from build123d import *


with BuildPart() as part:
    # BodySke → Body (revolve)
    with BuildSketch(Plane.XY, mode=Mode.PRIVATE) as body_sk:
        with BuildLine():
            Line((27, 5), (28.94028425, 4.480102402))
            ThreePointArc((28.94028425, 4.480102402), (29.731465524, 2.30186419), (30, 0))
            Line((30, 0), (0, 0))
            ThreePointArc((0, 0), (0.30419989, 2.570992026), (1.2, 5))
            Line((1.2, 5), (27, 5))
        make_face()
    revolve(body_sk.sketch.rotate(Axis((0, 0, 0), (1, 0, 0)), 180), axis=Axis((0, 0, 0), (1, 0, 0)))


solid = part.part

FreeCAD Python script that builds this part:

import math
import FreeCAD as App
import Part
import Sketcher
from FreeCAD import Vector
Q = App.Units.Quantity

doc = App.newDocument("Part")
body = doc.addObject("PartDesign::Body", "Body")

# Sketch on XY plane
sketch1 = doc.addObject("Sketcher::SketchObject", "Sketch")
body.addObject(sketch1)
sketch1.AttachmentSupport = (doc.XY_Plane, [""])
sketch1.MapMode = "FlatFace"
sketch1.addGeometry(Part.LineSegment(Vector(28.9, 4.5, 0), Vector(27, 5, 0)), False)
sketch1.addGeometry(Part.LineSegment(Vector(27, 5, 0), Vector(1.2, 5, 0)), False)
sketch1.addGeometry(Part.ArcOfCircle(Part.Circle(Vector(11, 0, 0), Vector(0, 0, 1), 11), math.radians(153), math.radians(180)), False)
sketch1.addGeometry(Part.LineSegment(Vector(0, 0, 0), Vector(30, 0, 0)), False)
sketch1.addGeometry(Part.ArcOfCircle(Part.Circle(Vector(20, 0, 0), Vector(0, 0, 1), 10), math.radians(0), math.radians(27)), False)
sketch1.addConstraint(Sketcher.Constraint("Coincident", 0, 2, 1, 1))
sketch1.addConstraint(Sketcher.Constraint("Coincident", 1, 2, 2, 1))
sketch1.addConstraint(Sketcher.Constraint("Coincident", 2, 2, 3, 1))
sketch1.addConstraint(Sketcher.Constraint("Coincident", 3, 2, 4, 1))
sketch1.addConstraint(Sketcher.Constraint("Coincident", 4, 2, 0, 1))
sketch1.addConstraint(Sketcher.Constraint("Horizontal", 1))
sketch1.addConstraint(Sketcher.Constraint("Horizontal", 3))
sketch1.addConstraint(Sketcher.Constraint("Coincident", 2, 2, -1, 1))
sketch1.addConstraint(Sketcher.Constraint("PointOnObject", 2, 3, -1))
sketch1.addConstraint(Sketcher.Constraint("PointOnObject", 4, 3, -1))
sketch1.addConstraint(Sketcher.Constraint("Radius", 4, Q("10 mm")))
sketch1.addConstraint(Sketcher.Constraint("DistanceX", 3, 1, 3, 2, Q("30 mm")))
sketch1.addConstraint(Sketcher.Constraint("Angle", 0, Q("165 deg")))
sketch1.addConstraint(Sketcher.Constraint("DistanceX", 1, 2, 1, 1, Q("25.8 mm")))
sketch1.addConstraint(Sketcher.Constraint("DistanceX", -1, 1, 0, 2, Q("27 mm")))
sketch1.addConstraint(Sketcher.Constraint("DistanceY", -1, 1, 0, 2, Q("5 mm")))
revolution = doc.addObject("PartDesign::Revolution", "Revolution")
body.addObject(revolution)
revolution.Profile = sketch1
revolution.ReferenceAxis = (sketch1, ["H_Axis"])
revolution.Angle = 360

doc.recompute()
